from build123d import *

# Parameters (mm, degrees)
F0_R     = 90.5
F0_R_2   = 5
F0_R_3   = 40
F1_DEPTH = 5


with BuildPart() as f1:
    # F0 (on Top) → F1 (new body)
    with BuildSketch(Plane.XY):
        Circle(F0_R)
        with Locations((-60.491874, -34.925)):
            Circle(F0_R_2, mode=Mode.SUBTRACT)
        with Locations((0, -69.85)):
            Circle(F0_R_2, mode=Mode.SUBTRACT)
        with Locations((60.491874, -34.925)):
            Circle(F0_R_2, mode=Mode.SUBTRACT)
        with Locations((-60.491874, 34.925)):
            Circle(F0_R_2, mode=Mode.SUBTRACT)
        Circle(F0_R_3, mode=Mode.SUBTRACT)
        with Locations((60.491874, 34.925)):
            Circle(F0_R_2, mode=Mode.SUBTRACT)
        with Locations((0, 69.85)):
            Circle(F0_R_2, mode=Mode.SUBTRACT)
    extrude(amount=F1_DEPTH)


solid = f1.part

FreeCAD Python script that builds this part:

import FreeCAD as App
import Part
import Sketcher

V = App.Vector

doc = App.newDocument("Part")
body = doc.addObject("PartDesign::Body", "Body")

# Sketch on XY plane
sketch1 = body.newObject("Sketcher::SketchObject", "Sketch")
sketch1.AttachmentSupport = (doc.getObject("XY_Plane"), [""])
sketch1.MapMode = "FlatFace"
sketch1.addGeometry([
    Part.Circle(V(0, 0, 0), V(0, 0, 1), 90),  # 0
    Part.Circle(V(-60, -35, 0), V(0, 0, 1), 5),  # 1
    Part.Circle(V(0, -70, 0), V(0, 0, 1), 5),  # 2
    Part.Circle(V(60, -35, 0), V(0, 0, 1), 5),  # 3
    Part.Circle(V(-60, 35, 0), V(0, 0, 1), 5),  # 4
    Part.Circle(V(0, 0, 0), V(0, 0, 1), 40),  # 5
    Part.Circle(V(60, 35, 0), V(0, 0, 1), 5),  # 6
    Part.Circle(V(0, 70, 0), V(0, 0, 1), 5),  # 7
], False)
sketch1.addConstraint([
    Sketcher.Constraint("Coincident", 0, 3, -1, 1),
    Sketcher.Constraint("Coincident", 5, 3, -1, 1),
    Sketcher.Constraint("Equal", 1, 2),
    Sketcher.Constraint("Equal", 2, 3),
    Sketcher.Constraint("Equal", 3, 4),
    Sketcher.Constraint("Equal", 4, 6),
    Sketcher.Constraint("Equal", 6, 7),
    Sketcher.Constraint("Symmetric", 3, 3, 4, 3, -1, 1),
    Sketcher.Constraint("Symmetric", 1, 3, 6, 3, -1, 1),
    Sketcher.Constraint("Symmetric", 2, 3, 7, 3, -1, 1),
    Sketcher.Constraint("Symmetric", 1, 3, 3, 3, -2),
    Sketcher.Constraint("PointOnObject", 2, 3, -2),
    Sketcher.Constraint("Diameter", 0, 181.0),
    Sketcher.Constraint("Diameter", 1, 10.0),
    Sketcher.Constraint("Diameter", 5, 80.0),
    Sketcher.Constraint("DistanceY", 2, 3, -1, 1, 69.85),
    Sketcher.Constraint("DistanceY", 1, 3, 4, 3, 69.85),
    Sketcher.Constraint("DistanceX", 1, 3, 3, 3, 120.983748),
])
pad1 = body.newObject("PartDesign::Pad", "Pad")
pad1.Profile = sketch1
pad1.Length = 5

doc.recompute()
